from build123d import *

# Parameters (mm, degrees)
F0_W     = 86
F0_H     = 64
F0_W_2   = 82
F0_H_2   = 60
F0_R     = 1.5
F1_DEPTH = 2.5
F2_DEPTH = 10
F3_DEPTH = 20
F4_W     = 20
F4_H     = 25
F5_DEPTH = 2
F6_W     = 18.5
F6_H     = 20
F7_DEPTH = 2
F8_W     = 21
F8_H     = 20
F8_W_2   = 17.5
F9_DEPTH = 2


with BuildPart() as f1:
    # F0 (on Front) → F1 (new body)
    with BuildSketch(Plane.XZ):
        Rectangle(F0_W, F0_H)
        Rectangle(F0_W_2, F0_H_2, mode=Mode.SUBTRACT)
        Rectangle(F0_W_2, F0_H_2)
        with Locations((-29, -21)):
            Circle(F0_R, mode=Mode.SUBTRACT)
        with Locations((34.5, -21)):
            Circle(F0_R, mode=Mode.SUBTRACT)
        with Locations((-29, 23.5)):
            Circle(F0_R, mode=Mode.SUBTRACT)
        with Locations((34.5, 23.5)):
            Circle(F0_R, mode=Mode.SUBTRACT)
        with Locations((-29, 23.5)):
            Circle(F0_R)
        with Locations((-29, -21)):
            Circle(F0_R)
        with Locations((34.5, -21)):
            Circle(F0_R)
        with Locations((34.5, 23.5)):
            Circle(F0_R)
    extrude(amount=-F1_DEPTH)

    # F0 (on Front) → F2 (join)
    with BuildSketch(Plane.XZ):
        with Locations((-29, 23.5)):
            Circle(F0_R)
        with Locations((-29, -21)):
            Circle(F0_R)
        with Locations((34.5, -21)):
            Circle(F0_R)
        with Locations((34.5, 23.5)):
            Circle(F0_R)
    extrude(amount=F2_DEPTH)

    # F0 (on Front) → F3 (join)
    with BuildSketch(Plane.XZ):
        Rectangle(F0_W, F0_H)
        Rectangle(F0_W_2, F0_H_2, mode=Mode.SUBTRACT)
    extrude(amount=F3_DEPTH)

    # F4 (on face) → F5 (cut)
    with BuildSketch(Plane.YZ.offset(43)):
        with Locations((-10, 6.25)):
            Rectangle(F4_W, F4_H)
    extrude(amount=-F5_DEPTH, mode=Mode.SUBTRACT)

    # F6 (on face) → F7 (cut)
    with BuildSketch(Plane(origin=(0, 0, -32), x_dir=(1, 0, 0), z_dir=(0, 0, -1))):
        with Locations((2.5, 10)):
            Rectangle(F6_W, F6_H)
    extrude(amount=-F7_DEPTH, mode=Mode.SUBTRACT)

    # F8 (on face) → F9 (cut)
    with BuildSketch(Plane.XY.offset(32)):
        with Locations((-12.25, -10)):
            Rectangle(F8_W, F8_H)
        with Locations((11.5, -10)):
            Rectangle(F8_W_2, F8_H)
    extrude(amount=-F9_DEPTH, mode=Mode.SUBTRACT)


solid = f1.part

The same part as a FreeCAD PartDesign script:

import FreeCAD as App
import Part
import Sketcher
from FreeCAD import Vector


def add_polygon(sketch, points):
    """Adds a closed chain of lines whose ends are joined by coincident constraints."""
    first, n = sketch.GeometryCount, len(points)
    for a, b in zip(points, points[1:] + points[:1]):
        sketch.addGeometry(Part.LineSegment(App.Vector(*a, 0), App.Vector(*b, 0)), False)
    for i in range(n):
        sketch.addConstraint(Sketcher.Constraint("Coincident", first + i, 2, first + (i + 1) % n, 1))

doc = App.newDocument("Part")
body = doc.addObject("PartDesign::Body", "Body")

# Sketch on XZ plane
sketch1 = body.newObject("Sketcher::SketchObject", "Sketch")
sketch1.AttachmentSupport = (doc.getObject("XZ_Plane"), [""])
sketch1.MapMode = "FlatFace"
add_polygon(sketch1, [(-43, 32), (-43, -32), (43, -32), (43, 32)])  # lines 0-3
sketch1.addConstraint([
    Sketcher.Constraint("Vertical", 0),
    Sketcher.Constraint("Horizontal", 1),
    Sketcher.Constraint("Vertical", 2),
    Sketcher.Constraint("Horizontal", 3),
    Sketcher.Constraint("Symmetric", 0, 2, 2, 2, -1, 1),
    Sketcher.Constraint("DistanceX", 1, 1, 1, 2, 86.0),
    Sketcher.Constraint("DistanceY", 0, 2, 0, 1, 64.0),
])
pad1 = body.newObject("PartDesign::Pad", "Pad")
pad1.Profile = sketch1
pad1.Length = 2.5
pad1.Reversed = True

# Sketch on XZ plane
sketch2 = body.newObject("Sketcher::SketchObject", "Sketch001")
sketch2.AttachmentSupport = (doc.getObject("XZ_Plane"), [""])
sketch2.MapMode = "FlatFace"
sketch2.addGeometry([
    Part.Circle(Vector(-29, 23.5, 0), Vector(0, 0, 1), 1.5),
    Part.Circle(Vector(-29, -21, 0), Vector(0, 0, 1), 1.5),
    Part.Circle(Vector(34.5, -21, 0), Vector(0, 0, 1), 1.5),
    Part.Circle(Vector(34.5, 23.5, 0), Vector(0, 0, 1), 1.5),
], False)
sketch2.addConstraint([
    Sketcher.Constraint("Equal", 0, 1),
    Sketcher.Constraint("Equal", 1, 2),
    Sketcher.Constraint("Equal", 2, 3),
    Sketcher.Constraint("Horizontal", 1, 3, 2, 3),
    Sketcher.Constraint("Horizontal", 0, 3, 3, 3),
    Sketcher.Constraint("Vertical", 0, 3, 1, 3),
    Sketcher.Constraint("Vertical", 2, 3, 3, 3),
    Sketcher.Constraint("Diameter", 0, 3.0),
    Sketcher.Constraint("DistanceX", 0, 3, -1, 1, 29.0),
    Sketcher.Constraint("DistanceY", 1, 3, -1, 1, 21.0),
    Sketcher.Constraint("DistanceY", -1, 1, 0, 3, 23.5),
    Sketcher.Constraint("DistanceX", -1, 1, 2, 3, 34.5),
])
pad2 = body.newObject("PartDesign::Pad", "Pad001")
pad2.Profile = sketch2
pad2.Length = 10

# Sketch on XZ plane
sketch3 = body.newObject("Sketcher::SketchObject", "Sketch002")
sketch3.AttachmentSupport = (doc.getObject("XZ_Plane"), [""])
sketch3.MapMode = "FlatFace"
add_polygon(sketch3, [(-43, 32), (-43, -32), (43, -32), (43, 32)])  # lines 0-3
add_polygon(sketch3, [(41, -30), (-41, -30), (-41, 30), (41, 30)])  # lines 4-7
sketch3.addConstraint([
    Sketcher.Constraint("Vertical", 0),
    Sketcher.Constraint("Horizontal", 1),
    Sketcher.Constraint("Vertical", 2),
    Sketcher.Constraint("Horizontal", 3),
    Sketcher.Constraint("Horizontal", 4),
    Sketcher.Constraint("Vertical", 5),
    Sketcher.Constraint("Horizontal", 6),
    Sketcher.Constraint("Vertical", 7),
    Sketcher.Constraint("Symmetric", 0, 2, 2, 2, -1, 1),
    Sketcher.Constraint("Symmetric", 4, 2, 6, 2, -1, 1),
    Sketcher.Constraint("DistanceX", 1, 1, 1, 2, 86.0),
    Sketcher.Constraint("DistanceX", 4, 2, 4, 1, 82.0),
    Sketcher.Constraint("DistanceY", 0, 2, 0, 1, 64.0),
    Sketcher.Constraint("DistanceY", 5, 1, 5, 2, 60.0),
])
pad3 = body.newObject("PartDesign::Pad", "Pad002")
pad3.Profile = sketch3
pad3.Length = 20

# Sketch on YZ plane
sketch4 = body.newObject("Sketcher::SketchObject", "Sketch003")
sketch4.AttachmentSupport = (doc.getObject("YZ_Plane"), [""])
sketch4.MapMode = "FlatFace"
sketch4.AttachmentOffset = App.Placement(Vector(0, 0, 43), App.Rotation())
add_polygon(sketch4, [(-20, 19), (-20, -6), (0, -6), (0, 19)])  # lines 0-3
sketch4.addConstraint([
    Sketcher.Constraint("Vertical", 0),
    Sketcher.Constraint("Horizontal", 1),
    Sketcher.Constraint("Vertical", 2),
    Sketcher.Constraint("Horizontal", 3),
    Sketcher.Constraint("PointOnObject", 1, 2, -2),
    Sketcher.Constraint("DistanceX", 1, 1, 1, 2, 20.0),
    Sketcher.Constraint("DistanceY", 0, 2, 0, 1, 25.0),
    Sketcher.Constraint("DistanceY", 0, 2, -1, 1, 6.25),
])
pocket1 = body.newObject("PartDesign::Pocket", "Pocket")
pocket1.Profile = sketch4
pocket1.Length = 2

# Sketch on XY plane
sketch5 = body.newObject("Sketcher::SketchObject", "Sketch004")
sketch5.AttachmentSupport = (doc.getObject("XY_Plane"), [""])
sketch5.MapMode = "FlatFace"
sketch5.AttachmentOffset = App.Placement(Vector(0, 0, -32), App.Rotation())
add_polygon(sketch5, [(-7, -20), (-7, 0), (12, 0), (12, -20)])  # lines 0-3
sketch5.addConstraint([
    Sketcher.Constraint("Vertical", 0),
    Sketcher.Constraint("Horizontal", 1),
    Sketcher.Constraint("Vertical", 2),
    Sketcher.Constraint("Horizontal", 3),
    Sketcher.Constraint("PointOnObject", 0, 2, -1),
    Sketcher.Constraint("DistanceY", 0, 1, 0, 2, 20.0),
    Sketcher.Constraint("DistanceX", 1, 1, 1, 2, 18.5),
    Sketcher.Constraint("DistanceX", 0, 2, -1, 1, 6.75),
])
pocket2 = body.newObject("PartDesign::Pocket", "Pocket001")
pocket2.Profile = sketch5
pocket2.Length = 2
pocket2.Reversed = True

# Sketch on XY plane
sketch6 = body.newObject("Sketcher::SketchObject", "Sketch005")
sketch6.AttachmentSupport = (doc.getObject("XY_Plane"), [""])
sketch6.MapMode = "FlatFace"
sketch6.AttachmentOffset = App.Placement(Vector(0, 0, 32), App.Rotation())
add_polygon(sketch6, [(-23, 0), (-23, -20), (-2, -20), (-2, 0)])  # lines 0-3
add_polygon(sketch6, [(3, 0), (3, -20), (20, -20), (20, 0)])  # lines 4-7
sketch6.addConstraint([
    Sketcher.Constraint("Vertical", 0),
    Sketcher.Constraint("Horizontal", 1),
    Sketcher.Constraint("Vertical", 2),
    Sketcher.Constraint("Horizontal", 3),
    Sketcher.Constraint("Vertical", 4),
    Sketcher.Constraint("Horizontal", 5),
    Sketcher.Constraint("Vertical", 6),
    Sketcher.Constraint("Horizontal", 7),
    Sketcher.Constraint("PointOnObject", 2, 2, -1),
    Sketcher.Constraint("PointOnObject", 6, 2, -1),
    Sketcher.Constraint("Horizontal", 1, 2, 4, 2),
    Sketcher.Constraint("DistanceX", 1, 1, 1, 2, 21.0),
    Sketcher.Constraint("DistanceY", 0, 2, 0, 1, 20.0),
    Sketcher.Constraint("DistanceX", 5, 1, 5, 2, 17.5),
    Sketcher.Constraint("DistanceX", 1, 2, 5, 2, 22.0),
    Sketcher.Constraint("DistanceX", 0, 2, -1, 1, 22.75),
])
pocket3 = body.newObject("PartDesign::Pocket", "Pocket002")
pocket3.Profile = sketch6
pocket3.Length = 2

doc.recompute()
